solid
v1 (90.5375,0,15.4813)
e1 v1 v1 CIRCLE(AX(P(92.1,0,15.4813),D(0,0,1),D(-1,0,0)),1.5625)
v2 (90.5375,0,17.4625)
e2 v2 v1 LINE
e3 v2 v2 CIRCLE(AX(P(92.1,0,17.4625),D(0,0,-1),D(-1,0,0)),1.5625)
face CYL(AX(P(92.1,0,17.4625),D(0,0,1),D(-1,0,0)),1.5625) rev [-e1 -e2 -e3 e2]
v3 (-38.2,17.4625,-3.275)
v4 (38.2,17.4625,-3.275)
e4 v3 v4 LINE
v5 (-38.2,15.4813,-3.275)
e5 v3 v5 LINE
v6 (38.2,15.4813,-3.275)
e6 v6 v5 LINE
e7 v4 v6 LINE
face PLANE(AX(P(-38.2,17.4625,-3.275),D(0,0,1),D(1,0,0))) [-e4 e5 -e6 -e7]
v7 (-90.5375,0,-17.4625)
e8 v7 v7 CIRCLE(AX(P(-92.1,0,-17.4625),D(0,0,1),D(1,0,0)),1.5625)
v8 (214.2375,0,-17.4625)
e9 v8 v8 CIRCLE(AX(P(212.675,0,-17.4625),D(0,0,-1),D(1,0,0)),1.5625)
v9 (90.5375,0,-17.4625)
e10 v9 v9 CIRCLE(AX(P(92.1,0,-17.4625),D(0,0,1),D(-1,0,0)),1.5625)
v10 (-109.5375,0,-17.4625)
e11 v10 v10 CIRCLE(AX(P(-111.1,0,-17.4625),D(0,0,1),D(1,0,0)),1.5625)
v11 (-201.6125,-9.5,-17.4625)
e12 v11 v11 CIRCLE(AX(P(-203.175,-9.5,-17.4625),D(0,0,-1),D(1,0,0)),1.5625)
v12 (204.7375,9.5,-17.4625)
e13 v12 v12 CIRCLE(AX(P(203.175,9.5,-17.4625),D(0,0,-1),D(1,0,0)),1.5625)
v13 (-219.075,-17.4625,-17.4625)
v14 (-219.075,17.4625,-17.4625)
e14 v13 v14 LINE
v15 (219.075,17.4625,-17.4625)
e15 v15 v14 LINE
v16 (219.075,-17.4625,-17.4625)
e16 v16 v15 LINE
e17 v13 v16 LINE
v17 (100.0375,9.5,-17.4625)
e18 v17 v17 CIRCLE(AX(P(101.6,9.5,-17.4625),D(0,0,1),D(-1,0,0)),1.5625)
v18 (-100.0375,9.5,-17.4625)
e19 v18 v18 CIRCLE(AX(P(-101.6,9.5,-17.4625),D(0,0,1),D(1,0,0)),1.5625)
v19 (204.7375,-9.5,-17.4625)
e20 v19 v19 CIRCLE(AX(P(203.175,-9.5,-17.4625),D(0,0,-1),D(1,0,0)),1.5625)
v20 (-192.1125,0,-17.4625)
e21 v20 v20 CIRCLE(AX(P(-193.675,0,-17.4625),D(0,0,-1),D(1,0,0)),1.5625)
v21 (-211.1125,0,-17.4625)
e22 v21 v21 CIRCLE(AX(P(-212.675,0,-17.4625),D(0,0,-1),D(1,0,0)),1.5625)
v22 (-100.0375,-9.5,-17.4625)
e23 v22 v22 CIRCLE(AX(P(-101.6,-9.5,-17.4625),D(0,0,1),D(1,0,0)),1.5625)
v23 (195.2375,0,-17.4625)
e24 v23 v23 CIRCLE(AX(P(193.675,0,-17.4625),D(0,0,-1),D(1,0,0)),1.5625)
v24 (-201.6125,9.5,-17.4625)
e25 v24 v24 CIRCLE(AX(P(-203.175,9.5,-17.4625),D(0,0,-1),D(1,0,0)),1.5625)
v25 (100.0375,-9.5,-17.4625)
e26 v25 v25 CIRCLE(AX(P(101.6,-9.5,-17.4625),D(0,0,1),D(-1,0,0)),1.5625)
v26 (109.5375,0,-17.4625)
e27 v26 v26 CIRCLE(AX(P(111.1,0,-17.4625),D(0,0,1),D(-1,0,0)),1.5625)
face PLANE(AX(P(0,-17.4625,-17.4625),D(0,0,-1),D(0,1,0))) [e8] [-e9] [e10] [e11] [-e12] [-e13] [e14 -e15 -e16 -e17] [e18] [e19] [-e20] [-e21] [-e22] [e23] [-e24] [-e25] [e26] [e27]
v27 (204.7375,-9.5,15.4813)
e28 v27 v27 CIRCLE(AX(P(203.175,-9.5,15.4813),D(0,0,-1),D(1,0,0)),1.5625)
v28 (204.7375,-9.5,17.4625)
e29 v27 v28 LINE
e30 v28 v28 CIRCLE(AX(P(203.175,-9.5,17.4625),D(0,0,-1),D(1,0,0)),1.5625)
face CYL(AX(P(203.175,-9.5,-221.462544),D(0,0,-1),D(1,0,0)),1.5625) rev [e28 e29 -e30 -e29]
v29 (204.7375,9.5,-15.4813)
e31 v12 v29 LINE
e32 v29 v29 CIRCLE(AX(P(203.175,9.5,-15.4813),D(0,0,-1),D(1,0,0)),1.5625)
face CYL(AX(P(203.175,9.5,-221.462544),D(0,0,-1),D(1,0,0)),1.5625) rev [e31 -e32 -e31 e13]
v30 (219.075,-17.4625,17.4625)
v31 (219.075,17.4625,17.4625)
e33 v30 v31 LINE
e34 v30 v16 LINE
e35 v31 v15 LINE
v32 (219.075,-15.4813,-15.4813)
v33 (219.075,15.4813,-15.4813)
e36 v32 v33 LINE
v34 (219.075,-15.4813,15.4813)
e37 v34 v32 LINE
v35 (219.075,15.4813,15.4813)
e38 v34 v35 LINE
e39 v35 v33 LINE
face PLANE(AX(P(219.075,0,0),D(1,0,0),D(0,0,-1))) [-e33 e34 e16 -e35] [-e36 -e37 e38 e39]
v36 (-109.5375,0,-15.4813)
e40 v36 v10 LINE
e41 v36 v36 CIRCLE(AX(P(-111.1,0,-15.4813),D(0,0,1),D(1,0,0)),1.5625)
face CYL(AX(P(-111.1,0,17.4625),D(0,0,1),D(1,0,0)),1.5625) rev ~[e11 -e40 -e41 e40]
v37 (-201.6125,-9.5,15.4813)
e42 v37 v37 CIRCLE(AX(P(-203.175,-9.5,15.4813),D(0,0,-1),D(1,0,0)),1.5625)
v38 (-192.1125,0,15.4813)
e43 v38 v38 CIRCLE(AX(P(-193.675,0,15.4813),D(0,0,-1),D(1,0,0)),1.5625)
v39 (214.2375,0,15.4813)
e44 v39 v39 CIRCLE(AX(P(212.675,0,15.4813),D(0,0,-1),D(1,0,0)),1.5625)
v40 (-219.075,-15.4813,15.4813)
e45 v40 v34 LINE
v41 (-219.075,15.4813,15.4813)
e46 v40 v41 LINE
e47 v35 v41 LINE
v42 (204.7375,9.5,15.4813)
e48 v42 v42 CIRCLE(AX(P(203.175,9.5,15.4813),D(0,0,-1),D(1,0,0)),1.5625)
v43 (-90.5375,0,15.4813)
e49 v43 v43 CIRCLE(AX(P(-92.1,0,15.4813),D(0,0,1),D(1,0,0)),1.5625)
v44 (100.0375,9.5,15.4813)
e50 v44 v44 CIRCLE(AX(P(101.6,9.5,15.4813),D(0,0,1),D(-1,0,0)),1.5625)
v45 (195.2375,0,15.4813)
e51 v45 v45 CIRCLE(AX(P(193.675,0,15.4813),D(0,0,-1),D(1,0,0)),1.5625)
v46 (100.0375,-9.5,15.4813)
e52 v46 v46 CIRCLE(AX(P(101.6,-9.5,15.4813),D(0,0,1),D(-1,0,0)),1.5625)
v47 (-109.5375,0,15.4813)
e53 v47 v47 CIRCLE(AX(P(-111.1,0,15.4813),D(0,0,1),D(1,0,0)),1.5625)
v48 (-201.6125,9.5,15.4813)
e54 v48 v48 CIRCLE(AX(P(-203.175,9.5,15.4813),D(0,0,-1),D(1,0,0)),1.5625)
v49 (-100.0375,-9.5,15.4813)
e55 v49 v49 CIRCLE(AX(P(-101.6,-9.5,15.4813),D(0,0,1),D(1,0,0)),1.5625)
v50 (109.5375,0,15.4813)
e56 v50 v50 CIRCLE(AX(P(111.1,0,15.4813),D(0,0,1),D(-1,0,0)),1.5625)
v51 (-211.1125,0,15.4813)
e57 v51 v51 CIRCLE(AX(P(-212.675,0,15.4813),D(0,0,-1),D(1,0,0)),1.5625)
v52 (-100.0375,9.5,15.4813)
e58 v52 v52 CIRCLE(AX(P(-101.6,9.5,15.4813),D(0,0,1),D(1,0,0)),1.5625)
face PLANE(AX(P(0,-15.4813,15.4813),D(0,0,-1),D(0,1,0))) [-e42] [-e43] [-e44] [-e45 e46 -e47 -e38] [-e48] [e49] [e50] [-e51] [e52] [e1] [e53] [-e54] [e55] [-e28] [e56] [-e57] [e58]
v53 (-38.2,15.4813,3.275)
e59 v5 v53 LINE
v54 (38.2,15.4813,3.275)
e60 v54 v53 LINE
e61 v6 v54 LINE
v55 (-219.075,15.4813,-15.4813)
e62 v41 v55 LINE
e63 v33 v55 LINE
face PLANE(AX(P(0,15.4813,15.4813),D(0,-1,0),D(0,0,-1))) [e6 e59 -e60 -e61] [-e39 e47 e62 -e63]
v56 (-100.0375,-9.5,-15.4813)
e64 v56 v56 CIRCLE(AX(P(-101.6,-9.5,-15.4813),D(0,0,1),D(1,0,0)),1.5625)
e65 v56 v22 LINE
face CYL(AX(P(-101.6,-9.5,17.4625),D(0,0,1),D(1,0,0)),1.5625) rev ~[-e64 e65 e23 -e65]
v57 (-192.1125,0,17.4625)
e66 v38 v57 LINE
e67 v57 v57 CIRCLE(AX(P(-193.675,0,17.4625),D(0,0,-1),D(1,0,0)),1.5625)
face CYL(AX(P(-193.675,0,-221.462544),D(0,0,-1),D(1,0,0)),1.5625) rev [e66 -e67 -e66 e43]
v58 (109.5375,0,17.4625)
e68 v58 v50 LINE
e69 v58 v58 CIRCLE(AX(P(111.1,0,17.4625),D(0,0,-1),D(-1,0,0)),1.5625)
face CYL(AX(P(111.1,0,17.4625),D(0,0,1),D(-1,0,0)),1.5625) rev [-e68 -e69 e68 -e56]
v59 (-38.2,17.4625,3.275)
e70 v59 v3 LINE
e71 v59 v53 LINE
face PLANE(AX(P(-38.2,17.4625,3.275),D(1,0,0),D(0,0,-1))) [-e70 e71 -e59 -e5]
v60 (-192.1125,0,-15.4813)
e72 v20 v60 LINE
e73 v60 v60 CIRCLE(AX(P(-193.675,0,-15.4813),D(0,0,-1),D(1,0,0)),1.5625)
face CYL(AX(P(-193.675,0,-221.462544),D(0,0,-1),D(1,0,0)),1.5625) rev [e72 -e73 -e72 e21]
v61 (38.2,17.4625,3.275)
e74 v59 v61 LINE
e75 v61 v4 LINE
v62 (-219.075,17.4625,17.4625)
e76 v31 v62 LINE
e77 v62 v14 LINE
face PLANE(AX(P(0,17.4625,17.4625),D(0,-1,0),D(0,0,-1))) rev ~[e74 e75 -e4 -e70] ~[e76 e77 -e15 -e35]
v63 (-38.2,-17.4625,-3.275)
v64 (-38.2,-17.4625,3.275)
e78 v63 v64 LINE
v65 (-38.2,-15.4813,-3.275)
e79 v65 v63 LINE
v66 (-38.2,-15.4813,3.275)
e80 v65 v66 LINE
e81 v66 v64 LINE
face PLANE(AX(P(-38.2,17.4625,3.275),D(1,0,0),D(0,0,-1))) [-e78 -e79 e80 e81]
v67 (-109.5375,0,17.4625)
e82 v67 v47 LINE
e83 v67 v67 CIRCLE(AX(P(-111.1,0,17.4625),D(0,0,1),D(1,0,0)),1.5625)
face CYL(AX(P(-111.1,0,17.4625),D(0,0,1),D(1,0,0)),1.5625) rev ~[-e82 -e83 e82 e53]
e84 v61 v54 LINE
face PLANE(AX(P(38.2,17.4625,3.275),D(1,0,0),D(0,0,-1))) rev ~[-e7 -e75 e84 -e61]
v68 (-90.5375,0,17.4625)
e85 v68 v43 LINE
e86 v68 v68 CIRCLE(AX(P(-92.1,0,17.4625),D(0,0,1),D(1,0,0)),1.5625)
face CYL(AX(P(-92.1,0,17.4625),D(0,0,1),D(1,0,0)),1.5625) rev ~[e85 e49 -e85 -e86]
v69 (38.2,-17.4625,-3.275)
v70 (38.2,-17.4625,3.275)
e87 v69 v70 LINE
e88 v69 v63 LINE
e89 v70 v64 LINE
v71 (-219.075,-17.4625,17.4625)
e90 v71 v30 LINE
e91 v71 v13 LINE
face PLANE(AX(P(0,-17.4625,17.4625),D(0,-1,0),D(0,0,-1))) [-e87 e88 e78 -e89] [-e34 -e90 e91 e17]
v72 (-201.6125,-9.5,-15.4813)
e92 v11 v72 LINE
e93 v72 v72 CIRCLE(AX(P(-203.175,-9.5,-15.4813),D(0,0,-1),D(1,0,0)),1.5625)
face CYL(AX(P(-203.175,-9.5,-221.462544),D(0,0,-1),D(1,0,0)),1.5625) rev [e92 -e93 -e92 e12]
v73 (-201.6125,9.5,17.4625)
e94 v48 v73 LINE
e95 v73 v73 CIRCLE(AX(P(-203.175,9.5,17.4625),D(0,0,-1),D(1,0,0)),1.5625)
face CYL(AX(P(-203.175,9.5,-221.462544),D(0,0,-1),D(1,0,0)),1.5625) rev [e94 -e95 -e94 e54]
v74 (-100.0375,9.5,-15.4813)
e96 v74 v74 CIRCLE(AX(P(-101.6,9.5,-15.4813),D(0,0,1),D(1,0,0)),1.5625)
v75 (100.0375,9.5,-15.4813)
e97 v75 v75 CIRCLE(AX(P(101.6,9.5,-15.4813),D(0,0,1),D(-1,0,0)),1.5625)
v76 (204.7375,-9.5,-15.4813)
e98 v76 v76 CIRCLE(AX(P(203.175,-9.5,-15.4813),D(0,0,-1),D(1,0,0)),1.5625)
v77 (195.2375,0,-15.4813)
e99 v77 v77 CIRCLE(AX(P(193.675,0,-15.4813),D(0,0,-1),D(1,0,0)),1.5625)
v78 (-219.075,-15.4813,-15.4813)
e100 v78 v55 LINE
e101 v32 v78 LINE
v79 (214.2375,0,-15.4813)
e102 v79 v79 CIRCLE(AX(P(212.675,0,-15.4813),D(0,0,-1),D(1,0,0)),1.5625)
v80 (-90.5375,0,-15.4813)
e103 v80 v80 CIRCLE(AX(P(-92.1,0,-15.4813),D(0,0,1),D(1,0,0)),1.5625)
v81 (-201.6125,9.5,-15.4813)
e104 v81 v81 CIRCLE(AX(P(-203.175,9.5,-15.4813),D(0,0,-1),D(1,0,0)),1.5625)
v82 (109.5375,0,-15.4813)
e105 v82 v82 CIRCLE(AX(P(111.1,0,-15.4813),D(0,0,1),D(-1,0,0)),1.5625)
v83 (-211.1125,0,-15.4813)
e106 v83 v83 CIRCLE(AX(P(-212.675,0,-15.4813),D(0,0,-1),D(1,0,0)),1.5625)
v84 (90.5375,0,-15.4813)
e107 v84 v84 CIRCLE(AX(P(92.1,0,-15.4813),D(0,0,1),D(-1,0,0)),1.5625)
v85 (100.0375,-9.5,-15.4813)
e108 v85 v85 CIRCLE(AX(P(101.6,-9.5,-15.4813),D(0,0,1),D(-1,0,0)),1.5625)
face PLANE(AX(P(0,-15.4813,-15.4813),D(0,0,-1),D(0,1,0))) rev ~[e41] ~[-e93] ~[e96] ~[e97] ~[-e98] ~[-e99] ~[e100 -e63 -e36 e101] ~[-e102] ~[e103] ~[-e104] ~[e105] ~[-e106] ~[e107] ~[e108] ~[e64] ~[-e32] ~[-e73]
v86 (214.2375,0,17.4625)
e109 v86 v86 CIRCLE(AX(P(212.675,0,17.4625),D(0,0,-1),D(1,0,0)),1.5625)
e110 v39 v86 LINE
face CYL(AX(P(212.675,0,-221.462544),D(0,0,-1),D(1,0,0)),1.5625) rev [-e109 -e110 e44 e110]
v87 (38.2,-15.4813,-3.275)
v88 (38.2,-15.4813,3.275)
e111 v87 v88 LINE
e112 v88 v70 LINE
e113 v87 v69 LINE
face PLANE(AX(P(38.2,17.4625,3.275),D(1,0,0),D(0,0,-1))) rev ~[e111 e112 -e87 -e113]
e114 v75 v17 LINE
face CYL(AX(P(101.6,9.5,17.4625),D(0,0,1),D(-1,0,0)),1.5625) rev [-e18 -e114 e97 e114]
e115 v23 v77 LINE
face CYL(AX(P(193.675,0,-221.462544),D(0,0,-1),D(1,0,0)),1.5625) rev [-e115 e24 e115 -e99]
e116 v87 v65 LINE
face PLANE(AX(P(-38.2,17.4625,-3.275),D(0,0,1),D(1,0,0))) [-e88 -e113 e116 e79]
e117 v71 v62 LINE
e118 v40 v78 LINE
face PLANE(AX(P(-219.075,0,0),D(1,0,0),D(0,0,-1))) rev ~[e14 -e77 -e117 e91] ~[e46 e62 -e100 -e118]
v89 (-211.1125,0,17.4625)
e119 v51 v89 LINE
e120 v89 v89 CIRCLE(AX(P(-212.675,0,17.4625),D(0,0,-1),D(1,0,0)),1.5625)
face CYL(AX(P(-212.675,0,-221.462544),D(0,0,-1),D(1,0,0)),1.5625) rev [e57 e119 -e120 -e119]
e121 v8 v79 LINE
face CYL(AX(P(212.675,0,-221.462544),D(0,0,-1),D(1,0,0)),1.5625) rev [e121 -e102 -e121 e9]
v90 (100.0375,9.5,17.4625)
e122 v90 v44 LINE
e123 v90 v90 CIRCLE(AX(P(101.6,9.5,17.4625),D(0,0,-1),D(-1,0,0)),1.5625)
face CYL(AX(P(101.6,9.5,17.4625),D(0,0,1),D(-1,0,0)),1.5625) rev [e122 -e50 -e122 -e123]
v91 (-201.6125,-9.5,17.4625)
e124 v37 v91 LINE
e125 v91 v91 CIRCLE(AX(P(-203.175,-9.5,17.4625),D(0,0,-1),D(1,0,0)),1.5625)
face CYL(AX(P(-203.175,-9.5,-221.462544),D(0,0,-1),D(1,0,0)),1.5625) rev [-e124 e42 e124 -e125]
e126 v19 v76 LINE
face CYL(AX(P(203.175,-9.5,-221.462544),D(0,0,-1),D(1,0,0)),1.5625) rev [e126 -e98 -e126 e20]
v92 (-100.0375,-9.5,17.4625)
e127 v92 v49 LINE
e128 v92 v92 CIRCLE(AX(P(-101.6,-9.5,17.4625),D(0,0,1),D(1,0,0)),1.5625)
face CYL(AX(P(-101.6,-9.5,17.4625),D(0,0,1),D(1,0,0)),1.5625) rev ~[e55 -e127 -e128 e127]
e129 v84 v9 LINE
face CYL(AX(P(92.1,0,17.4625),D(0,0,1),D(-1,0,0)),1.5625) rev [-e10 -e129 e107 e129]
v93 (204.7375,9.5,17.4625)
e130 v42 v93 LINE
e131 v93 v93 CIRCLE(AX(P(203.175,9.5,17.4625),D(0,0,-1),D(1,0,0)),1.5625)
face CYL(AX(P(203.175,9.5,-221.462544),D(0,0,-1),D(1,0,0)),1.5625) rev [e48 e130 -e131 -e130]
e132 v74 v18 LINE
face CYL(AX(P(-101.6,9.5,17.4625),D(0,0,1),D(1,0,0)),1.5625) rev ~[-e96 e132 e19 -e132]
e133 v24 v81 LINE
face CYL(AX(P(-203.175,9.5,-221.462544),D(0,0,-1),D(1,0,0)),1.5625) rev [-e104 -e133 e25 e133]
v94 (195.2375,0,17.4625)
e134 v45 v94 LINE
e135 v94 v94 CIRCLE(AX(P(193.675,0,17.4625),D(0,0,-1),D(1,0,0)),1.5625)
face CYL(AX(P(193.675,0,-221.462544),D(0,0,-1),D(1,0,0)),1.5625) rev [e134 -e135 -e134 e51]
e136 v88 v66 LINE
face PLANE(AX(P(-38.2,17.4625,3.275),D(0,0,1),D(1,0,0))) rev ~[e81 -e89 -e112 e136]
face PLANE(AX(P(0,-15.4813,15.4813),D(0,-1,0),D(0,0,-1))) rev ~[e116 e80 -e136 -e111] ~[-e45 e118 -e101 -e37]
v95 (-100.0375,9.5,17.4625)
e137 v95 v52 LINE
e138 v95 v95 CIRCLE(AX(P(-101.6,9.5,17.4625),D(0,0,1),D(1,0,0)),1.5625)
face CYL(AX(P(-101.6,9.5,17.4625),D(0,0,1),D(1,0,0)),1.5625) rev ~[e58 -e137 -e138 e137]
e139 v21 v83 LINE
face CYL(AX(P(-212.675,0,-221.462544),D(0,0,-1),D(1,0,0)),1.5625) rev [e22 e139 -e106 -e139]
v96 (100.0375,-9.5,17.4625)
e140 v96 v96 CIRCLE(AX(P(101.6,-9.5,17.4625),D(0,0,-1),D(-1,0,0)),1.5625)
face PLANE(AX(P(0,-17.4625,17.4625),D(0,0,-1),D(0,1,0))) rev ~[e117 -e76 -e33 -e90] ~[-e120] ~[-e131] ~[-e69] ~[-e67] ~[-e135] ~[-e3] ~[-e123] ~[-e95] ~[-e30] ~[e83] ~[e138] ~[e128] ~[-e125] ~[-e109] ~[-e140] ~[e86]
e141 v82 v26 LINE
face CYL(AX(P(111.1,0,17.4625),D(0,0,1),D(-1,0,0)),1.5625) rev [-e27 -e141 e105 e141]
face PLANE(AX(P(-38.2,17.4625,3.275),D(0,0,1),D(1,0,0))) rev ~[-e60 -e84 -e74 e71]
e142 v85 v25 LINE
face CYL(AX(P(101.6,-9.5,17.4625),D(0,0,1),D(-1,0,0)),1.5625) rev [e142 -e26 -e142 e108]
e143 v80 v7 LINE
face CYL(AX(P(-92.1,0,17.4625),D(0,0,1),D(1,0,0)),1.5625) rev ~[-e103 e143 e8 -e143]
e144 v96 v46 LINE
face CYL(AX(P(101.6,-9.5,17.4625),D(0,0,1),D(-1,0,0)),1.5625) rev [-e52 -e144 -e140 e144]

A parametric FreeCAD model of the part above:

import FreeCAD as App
import Part
import Sketcher

V = App.Vector
Q = App.Units.Quantity


def add_polygon(sketch, points):
    """Adds a closed chain of lines whose ends are joined by coincident constraints."""
    first, n = sketch.GeometryCount, len(points)
    for a, b in zip(points, points[1:] + points[:1]):
        sketch.addGeometry(Part.LineSegment(App.Vector(*a, 0), App.Vector(*b, 0)), False)
    for i in range(n):
        sketch.addConstraint(Sketcher.Constraint("Coincident", first + i, 2, first + (i + 1) % n, 1))

doc = App.newDocument("Part")
params = doc.addObject("Spreadsheet::Sheet", "Params")
for row, (alias, value) in enumerate([
    ("sketch1_width", "1.375 in"),
    ("sketch1_width2", "1.219 in"),
    ("pad1_length", "17.25 in"),
], start=1):
    params.set(f"A{row}", alias)
    params.set(f"B{row}", "=" + value)
    params.setAlias(f"B{row}", alias)

body = doc.addObject("PartDesign::Body", "Body")

# Sketch on YZ plane
sketch1 = body.newObject("Sketcher::SketchObject", "Sketch")
sketch1.AttachmentSupport = (doc.getObject("YZ_Plane"), [""])
sketch1.MapMode = "FlatFace"
add_polygon(sketch1, [(17, 17), (-17, 17), (-17, -17), (17, -17)])  # lines 0-3
add_polygon(sketch1, [(-15, -15), (-15, 15), (15, 15), (15, -15)])  # lines 4-7
sketch1.addConstraint([
    Sketcher.Constraint("Horizontal", 0),
    Sketcher.Constraint("Vertical", 1),
    Sketcher.Constraint("Horizontal", 2),
    Sketcher.Constraint("Vertical", 3),
    Sketcher.Constraint("Vertical", 4),
    Sketcher.Constraint("Horizontal", 5),
    Sketcher.Constraint("Vertical", 6),
    Sketcher.Constraint("Horizontal", 7),
    Sketcher.Constraint("Symmetric", 0, 2, 2, 2, -1, 1),
    Sketcher.Constraint("Symmetric", 4, 2, 6, 2, -1, 1),
    Sketcher.Constraint("Equal", 2, 1),
    Sketcher.Constraint("Equal", 7, 4),
    Sketcher.Constraint("DistanceX", 0, 2, 0, 1, Q("1.375 in")),
    Sketcher.Constraint("DistanceX", 5, 1, 5, 2, Q("1.219 in")),
])
sketch1.setExpression("Constraints[20]", "Params.sketch1_width")
sketch1.setExpression("Constraints[21]", "Params.sketch1_width2")
pad1 = body.newObject("PartDesign::Pad", "Pad")
pad1.Profile = sketch1
pad1.setExpression("Length", "Params.pad1_length")
pad1.Midplane = True

# Sketch on XZ plane
sketch2 = body.newObject("Sketcher::SketchObject", "Sketch001")
sketch2.AttachmentSupport = (doc.getObject("XZ_Plane"), [""])
sketch2.MapMode = "FlatFace"
sketch2.AttachmentOffset = App.Placement(V(0, 0, -0.6875 * 25.4), App.Rotation())
add_polygon(sketch2, [(-38, -3), (-38, 3), (38, 3), (38, -3)])  # lines 0-3
sketch2.addConstraint([
    Sketcher.Constraint("Vertical", 0),
    Sketcher.Constraint("Horizontal", 1),
    Sketcher.Constraint("Vertical", 2),
    Sketcher.Constraint("Horizontal", 3),
    Sketcher.Constraint("Symmetric", 0, 2, 2, 2, -1, 1),
    Sketcher.Constraint("DistanceX", 1, 1, 1, 2, Q("76.4 mm")),
    Sketcher.Constraint("DistanceY", 0, 1, 0, 2, Q("6.55 mm")),
])
pocket1 = body.newObject("PartDesign::Pocket", "Pocket")
pocket1.Profile = sketch2
pocket1.Type = "ThroughAll"
pocket1.Reversed = True

# Sketch on XY plane
sketch3 = body.newObject("Sketcher::SketchObject", "Sketch002")
sketch3.AttachmentSupport = (doc.getObject("XY_Plane"), [""])
sketch3.MapMode = "FlatFace"
sketch3.addGeometry([
    Part.Circle(V(-203.2, 9.5, 0), V(0, 0, 1), 1.6),  # 0
    Part.Circle(V(-193.7, 0, 0), V(0, 0, 1), 1.6),  # 1
    Part.Circle(V(-203.2, -9.5, 0), V(0, 0, 1), 1.6),  # 2
    Part.Circle(V(-212.7, 0, 0), V(0, 0, 1), 1.6),  # 3
    Part.Circle(V(212.7, 0, 0), V(0, 0, 1), 1.6),  # 4
    Part.Circle(V(203.2, -9.5, 0), V(0, 0, 1), 1.6),  # 5
    Part.Circle(V(193.7, 0, 0), V(0, 0, 1), 1.6),  # 6
    Part.Circle(V(203.2, 9.5, 0), V(0, 0, 1), 1.6),  # 7
], False)
sketch3.addConstraint([
    Sketcher.Constraint("Equal", 0, 1),
    Sketcher.Constraint("Equal", 1, 2),
    Sketcher.Constraint("Equal", 2, 3),
    Sketcher.Constraint("Equal", 3, 4),
    Sketcher.Constraint("Equal", 4, 5),
    Sketcher.Constraint("Equal", 5, 6),
    Sketcher.Constraint("Equal", 6, 7),
    Sketcher.Constraint("Symmetric", 3, 3, 4, 3, -1, 1),
    Sketcher.Constraint("Symmetric", 0, 3, 5, 3, -1, 1),
    Sketcher.Constraint("Symmetric", 1, 3, 6, 3, -1, 1),
    Sketcher.Constraint("Symmetric", 2, 3, 7, 3, -1, 1),
    Sketcher.Constraint("Symmetric", 2, 3, 5, 3, -2),
    Sketcher.Constraint("PointOnObject", 1, 3, -1),
    Sketcher.Constraint("PointOnObject", 3, 3, -1),
    Sketcher.Constraint("Diameter", 0, Q("3.125 mm")),
    Sketcher.Constraint("DistanceX", 1, 3, 6, 3, Q("15.25 in")),
    Sketcher.Constraint("DistanceX", 0, 3, -1, 1, Q("203.175 mm")),
    Sketcher.Constraint("DistanceY", -1, 1, 0, 3, Q("9.5 mm")),
    Sketcher.Constraint("DistanceX", 3, 3, -1, 1, Q("212.675 mm")),
])
pocket2 = body.newObject("PartDesign::Pocket", "Pocket001")
pocket2.Profile = sketch3
pocket2.Type = "ThroughAll"
pocket2.Midplane = True

# Sketch on XY plane
sketch4 = body.newObject("Sketcher::SketchObject", "Sketch003")
sketch4.AttachmentSupport = (doc.getObject("XY_Plane"), [""])
sketch4.MapMode = "FlatFace"
sketch4.AttachmentOffset = App.Placement(V(0, 0, 0.6875 * 25.4), App.Rotation())
sketch4.addGeometry([
    Part.Circle(V(-101.6, 9.5, 0), V(0, 0, 1), 1.6),
    Part.Circle(V(-92.1, 0, 0), V(0, 0, 1), 1.6),
    Part.Circle(V(-101.6, -9.5, 0), V(0, 0, 1), 1.6),
    Part.Circle(V(-111.1, 0, 0), V(0, 0, 1), 1.6),
], False)
sketch4.addConstraint([
    Sketcher.Constraint("Equal", 0, 1),
    Sketcher.Constraint("Equal", 1, 2),
    Sketcher.Constraint("Equal", 2, 3),
    Sketcher.Constraint("Symmetric", 0, 3, 2, 3, -1),
    Sketcher.Constraint("PointOnObject", 1, 3, -1),
    Sketcher.Constraint("PointOnObject", 3, 3, -1),
    Sketcher.Constraint("DistanceX", 0, 3, -1, 1, Q("4 in")),
    Sketcher.Constraint("Diameter", 0, Q("3.125 mm")),
    Sketcher.Constraint("DistanceY", -1, 1, 0, 3, Q("9.5 mm")),
    Sketcher.Constraint("DistanceX", 1, 3, -1, 1, Q("92.1 mm")),
    Sketcher.Constraint("DistanceX", 3, 3, -1, 1, Q("111.1 mm")),
])
pocket3 = body.newObject("PartDesign::Pocket", "Pocket002")
pocket3.Profile = sketch4
pocket3.Type = "ThroughAll"
doc.recompute()

mirrored = body.newObject("PartDesign::Mirrored", "Mirrored")
mirrored.Originals = [pocket3]
mirrored.MirrorPlane = (doc.getObject("YZ_Plane"), [""])
body.Tip = mirrored

doc.recompute()
